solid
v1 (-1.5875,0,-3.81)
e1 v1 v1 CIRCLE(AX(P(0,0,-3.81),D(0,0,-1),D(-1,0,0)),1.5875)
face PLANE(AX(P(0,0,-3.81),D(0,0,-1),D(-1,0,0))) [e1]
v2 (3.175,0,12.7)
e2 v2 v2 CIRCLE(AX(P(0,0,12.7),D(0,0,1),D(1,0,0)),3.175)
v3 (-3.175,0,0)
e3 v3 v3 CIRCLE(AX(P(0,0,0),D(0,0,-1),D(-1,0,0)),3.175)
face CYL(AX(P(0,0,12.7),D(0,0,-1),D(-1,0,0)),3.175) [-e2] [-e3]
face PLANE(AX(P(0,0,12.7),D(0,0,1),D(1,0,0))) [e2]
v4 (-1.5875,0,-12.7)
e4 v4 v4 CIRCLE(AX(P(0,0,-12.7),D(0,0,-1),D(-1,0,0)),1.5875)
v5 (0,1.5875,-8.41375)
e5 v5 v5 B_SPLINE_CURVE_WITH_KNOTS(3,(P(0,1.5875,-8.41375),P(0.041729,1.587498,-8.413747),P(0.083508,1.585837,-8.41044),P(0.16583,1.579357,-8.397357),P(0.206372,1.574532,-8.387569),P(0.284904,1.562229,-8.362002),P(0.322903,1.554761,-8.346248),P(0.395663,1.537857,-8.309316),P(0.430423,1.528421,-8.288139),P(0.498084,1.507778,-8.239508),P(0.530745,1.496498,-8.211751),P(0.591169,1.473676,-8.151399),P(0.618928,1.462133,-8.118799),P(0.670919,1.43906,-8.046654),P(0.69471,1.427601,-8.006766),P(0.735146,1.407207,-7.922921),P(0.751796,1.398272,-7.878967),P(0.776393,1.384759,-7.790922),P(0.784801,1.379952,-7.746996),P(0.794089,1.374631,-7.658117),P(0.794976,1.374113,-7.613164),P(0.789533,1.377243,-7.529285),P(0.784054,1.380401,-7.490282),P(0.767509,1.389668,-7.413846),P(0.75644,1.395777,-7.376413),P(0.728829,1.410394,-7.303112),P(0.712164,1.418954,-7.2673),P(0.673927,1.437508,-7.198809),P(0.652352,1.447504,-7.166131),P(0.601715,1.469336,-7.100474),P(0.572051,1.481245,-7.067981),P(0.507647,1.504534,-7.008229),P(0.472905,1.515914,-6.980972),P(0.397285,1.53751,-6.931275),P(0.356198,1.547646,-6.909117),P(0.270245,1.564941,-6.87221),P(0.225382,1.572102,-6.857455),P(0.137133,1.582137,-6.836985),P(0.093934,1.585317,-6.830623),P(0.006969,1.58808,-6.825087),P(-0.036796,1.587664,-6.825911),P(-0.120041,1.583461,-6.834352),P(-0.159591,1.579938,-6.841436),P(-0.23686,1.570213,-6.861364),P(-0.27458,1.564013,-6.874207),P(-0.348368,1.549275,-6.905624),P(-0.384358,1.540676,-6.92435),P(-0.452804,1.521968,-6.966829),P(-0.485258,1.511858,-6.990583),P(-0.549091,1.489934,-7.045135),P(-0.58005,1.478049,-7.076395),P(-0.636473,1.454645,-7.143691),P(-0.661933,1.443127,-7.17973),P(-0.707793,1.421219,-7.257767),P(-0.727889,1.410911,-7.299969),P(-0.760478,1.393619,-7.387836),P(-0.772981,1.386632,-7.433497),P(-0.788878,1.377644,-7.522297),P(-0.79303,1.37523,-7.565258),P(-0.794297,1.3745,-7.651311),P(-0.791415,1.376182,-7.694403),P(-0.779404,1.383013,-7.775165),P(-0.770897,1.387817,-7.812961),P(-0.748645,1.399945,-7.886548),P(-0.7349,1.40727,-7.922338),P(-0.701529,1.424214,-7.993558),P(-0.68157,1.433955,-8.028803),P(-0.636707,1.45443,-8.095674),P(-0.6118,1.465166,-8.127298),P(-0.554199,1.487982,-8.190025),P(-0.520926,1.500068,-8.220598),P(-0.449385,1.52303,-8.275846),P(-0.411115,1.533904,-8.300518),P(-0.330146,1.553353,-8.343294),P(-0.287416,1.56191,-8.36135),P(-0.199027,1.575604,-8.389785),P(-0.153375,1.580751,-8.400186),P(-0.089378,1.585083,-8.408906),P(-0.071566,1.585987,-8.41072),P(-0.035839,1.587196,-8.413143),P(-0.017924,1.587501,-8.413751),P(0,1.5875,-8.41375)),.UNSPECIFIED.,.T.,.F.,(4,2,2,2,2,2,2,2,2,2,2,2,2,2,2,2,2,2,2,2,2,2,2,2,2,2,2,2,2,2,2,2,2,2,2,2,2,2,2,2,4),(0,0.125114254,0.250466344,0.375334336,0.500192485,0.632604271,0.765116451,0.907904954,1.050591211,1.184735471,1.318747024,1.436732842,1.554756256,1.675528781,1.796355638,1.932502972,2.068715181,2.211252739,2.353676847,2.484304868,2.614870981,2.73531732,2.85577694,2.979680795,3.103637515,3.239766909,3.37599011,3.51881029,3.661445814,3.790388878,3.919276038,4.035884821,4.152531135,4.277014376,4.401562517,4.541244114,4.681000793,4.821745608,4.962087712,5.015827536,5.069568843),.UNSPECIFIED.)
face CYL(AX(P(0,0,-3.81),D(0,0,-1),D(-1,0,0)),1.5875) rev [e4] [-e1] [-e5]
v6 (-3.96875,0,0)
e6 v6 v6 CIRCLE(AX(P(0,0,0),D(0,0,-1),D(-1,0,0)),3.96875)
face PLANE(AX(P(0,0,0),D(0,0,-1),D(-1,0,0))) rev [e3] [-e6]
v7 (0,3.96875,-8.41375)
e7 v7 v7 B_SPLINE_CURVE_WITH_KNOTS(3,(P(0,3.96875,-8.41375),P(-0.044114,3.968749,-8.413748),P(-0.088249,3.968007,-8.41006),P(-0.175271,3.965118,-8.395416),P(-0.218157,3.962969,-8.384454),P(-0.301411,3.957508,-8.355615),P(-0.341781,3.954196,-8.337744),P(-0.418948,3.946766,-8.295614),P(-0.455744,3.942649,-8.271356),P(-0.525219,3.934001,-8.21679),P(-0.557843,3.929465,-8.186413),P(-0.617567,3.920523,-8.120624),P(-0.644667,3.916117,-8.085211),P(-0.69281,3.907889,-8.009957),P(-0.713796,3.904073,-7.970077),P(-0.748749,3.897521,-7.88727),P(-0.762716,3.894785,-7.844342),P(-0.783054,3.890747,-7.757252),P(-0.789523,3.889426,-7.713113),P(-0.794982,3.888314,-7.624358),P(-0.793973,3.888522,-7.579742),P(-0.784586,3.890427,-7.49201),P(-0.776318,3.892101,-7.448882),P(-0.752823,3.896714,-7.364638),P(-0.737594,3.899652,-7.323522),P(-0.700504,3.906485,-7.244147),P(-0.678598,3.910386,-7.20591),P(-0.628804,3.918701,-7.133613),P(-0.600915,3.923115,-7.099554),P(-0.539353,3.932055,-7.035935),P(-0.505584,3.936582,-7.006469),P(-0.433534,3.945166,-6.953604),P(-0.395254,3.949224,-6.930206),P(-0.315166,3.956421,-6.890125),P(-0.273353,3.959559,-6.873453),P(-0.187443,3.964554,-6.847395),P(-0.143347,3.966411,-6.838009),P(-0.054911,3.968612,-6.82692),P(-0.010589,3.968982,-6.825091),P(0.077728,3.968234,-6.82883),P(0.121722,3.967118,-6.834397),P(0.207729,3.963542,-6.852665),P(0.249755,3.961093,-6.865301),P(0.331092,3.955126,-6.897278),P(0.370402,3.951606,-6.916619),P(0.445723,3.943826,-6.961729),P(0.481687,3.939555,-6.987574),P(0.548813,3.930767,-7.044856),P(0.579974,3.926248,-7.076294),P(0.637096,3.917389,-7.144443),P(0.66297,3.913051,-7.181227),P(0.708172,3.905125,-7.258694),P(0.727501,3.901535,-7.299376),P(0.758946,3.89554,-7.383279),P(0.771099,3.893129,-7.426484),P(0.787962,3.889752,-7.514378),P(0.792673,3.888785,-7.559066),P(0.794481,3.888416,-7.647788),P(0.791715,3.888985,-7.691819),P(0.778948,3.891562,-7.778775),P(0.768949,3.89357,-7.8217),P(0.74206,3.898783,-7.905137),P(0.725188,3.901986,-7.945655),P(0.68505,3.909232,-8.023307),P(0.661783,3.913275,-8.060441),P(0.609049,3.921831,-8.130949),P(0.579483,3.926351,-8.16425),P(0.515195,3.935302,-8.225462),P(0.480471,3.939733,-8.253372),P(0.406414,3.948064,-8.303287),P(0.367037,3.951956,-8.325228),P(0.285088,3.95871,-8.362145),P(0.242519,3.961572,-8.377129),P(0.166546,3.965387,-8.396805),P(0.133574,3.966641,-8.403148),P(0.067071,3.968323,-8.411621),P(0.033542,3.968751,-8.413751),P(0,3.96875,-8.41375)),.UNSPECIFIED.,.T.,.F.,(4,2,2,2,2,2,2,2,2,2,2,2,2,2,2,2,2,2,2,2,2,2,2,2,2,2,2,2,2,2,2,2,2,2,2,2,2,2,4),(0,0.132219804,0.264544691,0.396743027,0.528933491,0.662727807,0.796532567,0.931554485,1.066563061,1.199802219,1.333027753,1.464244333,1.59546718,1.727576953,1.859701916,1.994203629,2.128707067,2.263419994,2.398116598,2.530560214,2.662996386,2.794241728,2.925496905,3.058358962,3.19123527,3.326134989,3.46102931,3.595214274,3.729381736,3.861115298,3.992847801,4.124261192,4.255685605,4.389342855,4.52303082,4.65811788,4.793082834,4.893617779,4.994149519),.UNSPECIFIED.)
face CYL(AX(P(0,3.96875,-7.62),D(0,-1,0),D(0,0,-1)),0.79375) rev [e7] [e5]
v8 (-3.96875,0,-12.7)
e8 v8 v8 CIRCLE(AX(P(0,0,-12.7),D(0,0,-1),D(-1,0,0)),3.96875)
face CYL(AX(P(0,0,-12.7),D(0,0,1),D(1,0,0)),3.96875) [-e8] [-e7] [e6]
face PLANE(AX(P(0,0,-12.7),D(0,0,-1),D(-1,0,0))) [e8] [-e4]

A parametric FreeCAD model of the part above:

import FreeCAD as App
import Part
import Sketcher
from FreeCAD import Vector
Q = App.Units.Quantity

doc = App.newDocument("Part")
params = doc.addObject("Spreadsheet::Sheet", "Params")
for row, (alias, value) in enumerate([
    ("sketch1_diameter", "0.25 in"),
    ("pad1_length", "0.5 in"),
    ("sketch2_diameter", "0.3125 in"),
    ("pad2_length", "0.5 in"),
    ("sketch3_diameter", "0.125 in"),
    ("pocket1_length", "0.35 in"),
    ("sketch4_diameter", "0.0625 in"),
], start=1):
    params.set(f"A{row}", alias)
    params.set(f"B{row}", "=" + value)
    params.setAlias(f"B{row}", alias)

body = doc.addObject("PartDesign::Body", "Body")

# Sketch on XY plane
sketch1 = body.newObject("Sketcher::SketchObject", "Sketch")
sketch1.AttachmentSupport = (doc.getObject("XY_Plane"), [""])
sketch1.MapMode = "FlatFace"
sketch1.addGeometry(Part.Circle(Vector(0, 0, 0), Vector(0, 0, 1), 3.2), False)
sketch1.addConstraint([
    Sketcher.Constraint("Coincident", 0, 3, -1, 1),
    Sketcher.Constraint("Diameter", 0, Q("0.25 in")),
])
sketch1.setExpression("Constraints[1]", "Params.sketch1_diameter")
pad1 = body.newObject("PartDesign::Pad", "Pad")
pad1.Profile = sketch1
pad1.setExpression("Length", "Params.pad1_length")

# Sketch on XY plane
sketch2 = body.newObject("Sketcher::SketchObject", "Sketch001")
sketch2.AttachmentSupport = (doc.getObject("XY_Plane"), [""])
sketch2.MapMode = "FlatFace"
sketch2.addGeometry(Part.Circle(Vector(0, 0, 0), Vector(0, 0, 1), 4), False)
sketch2.addConstraint([
    Sketcher.Constraint("Coincident", 0, 3, -1, 1),
    Sketcher.Constraint("Diameter", 0, Q("0.3125 in")),
])
sketch2.setExpression("Constraints[1]", "Params.sketch2_diameter")
pad2 = body.newObject("PartDesign::Pad", "Pad001")
pad2.Profile = sketch2
pad2.setExpression("Length", "Params.pad2_length")
pad2.Reversed = True

# Sketch on XY plane
sketch3 = body.newObject("Sketcher::SketchObject", "Sketch002")
sketch3.AttachmentSupport = (doc.getObject("XY_Plane"), [""])
sketch3.MapMode = "FlatFace"
sketch3.AttachmentOffset = App.Placement(Vector(0, 0, -0.5 * 25.4), App.Rotation())
sketch3.addGeometry(Part.Circle(Vector(0, 0, 0), Vector(0, 0, 1), 1.6), False)
sketch3.addConstraint([
    Sketcher.Constraint("Coincident", 0, 3, -1, 1),
    Sketcher.Constraint("Diameter", 0, Q("0.125 in")),
])
sketch3.setExpression("Constraints[1]", "Params.sketch3_diameter")
pocket1 = body.newObject("PartDesign::Pocket", "Pocket")
pocket1.Profile = sketch3
pocket1.setExpression("Length", "Params.pocket1_length")
pocket1.Reversed = True

# Sketch on XZ plane
sketch4 = body.newObject("Sketcher::SketchObject", "Sketch003")
sketch4.AttachmentSupport = (doc.getObject("XZ_Plane"), [""])
sketch4.MapMode = "FlatFace"
sketch4.addGeometry(Part.Circle(Vector(0, -7.6, 0), Vector(0, 0, 1), 0.8), False)
sketch4.addConstraint([
    Sketcher.Constraint("PointOnObject", 0, 3, -2),
    Sketcher.Constraint("Diameter", 0, Q("0.0625 in")),
    Sketcher.Constraint("DistanceY", 0, 3, -1, 1, Q("0.3 in")),
])
sketch4.setExpression("Constraints[1]", "Params.sketch4_diameter")
pocket2 = body.newObject("PartDesign::Pocket", "Pocket001")
pocket2.Profile = sketch4
pocket2.Type = "ThroughAll"

doc.recompute()
